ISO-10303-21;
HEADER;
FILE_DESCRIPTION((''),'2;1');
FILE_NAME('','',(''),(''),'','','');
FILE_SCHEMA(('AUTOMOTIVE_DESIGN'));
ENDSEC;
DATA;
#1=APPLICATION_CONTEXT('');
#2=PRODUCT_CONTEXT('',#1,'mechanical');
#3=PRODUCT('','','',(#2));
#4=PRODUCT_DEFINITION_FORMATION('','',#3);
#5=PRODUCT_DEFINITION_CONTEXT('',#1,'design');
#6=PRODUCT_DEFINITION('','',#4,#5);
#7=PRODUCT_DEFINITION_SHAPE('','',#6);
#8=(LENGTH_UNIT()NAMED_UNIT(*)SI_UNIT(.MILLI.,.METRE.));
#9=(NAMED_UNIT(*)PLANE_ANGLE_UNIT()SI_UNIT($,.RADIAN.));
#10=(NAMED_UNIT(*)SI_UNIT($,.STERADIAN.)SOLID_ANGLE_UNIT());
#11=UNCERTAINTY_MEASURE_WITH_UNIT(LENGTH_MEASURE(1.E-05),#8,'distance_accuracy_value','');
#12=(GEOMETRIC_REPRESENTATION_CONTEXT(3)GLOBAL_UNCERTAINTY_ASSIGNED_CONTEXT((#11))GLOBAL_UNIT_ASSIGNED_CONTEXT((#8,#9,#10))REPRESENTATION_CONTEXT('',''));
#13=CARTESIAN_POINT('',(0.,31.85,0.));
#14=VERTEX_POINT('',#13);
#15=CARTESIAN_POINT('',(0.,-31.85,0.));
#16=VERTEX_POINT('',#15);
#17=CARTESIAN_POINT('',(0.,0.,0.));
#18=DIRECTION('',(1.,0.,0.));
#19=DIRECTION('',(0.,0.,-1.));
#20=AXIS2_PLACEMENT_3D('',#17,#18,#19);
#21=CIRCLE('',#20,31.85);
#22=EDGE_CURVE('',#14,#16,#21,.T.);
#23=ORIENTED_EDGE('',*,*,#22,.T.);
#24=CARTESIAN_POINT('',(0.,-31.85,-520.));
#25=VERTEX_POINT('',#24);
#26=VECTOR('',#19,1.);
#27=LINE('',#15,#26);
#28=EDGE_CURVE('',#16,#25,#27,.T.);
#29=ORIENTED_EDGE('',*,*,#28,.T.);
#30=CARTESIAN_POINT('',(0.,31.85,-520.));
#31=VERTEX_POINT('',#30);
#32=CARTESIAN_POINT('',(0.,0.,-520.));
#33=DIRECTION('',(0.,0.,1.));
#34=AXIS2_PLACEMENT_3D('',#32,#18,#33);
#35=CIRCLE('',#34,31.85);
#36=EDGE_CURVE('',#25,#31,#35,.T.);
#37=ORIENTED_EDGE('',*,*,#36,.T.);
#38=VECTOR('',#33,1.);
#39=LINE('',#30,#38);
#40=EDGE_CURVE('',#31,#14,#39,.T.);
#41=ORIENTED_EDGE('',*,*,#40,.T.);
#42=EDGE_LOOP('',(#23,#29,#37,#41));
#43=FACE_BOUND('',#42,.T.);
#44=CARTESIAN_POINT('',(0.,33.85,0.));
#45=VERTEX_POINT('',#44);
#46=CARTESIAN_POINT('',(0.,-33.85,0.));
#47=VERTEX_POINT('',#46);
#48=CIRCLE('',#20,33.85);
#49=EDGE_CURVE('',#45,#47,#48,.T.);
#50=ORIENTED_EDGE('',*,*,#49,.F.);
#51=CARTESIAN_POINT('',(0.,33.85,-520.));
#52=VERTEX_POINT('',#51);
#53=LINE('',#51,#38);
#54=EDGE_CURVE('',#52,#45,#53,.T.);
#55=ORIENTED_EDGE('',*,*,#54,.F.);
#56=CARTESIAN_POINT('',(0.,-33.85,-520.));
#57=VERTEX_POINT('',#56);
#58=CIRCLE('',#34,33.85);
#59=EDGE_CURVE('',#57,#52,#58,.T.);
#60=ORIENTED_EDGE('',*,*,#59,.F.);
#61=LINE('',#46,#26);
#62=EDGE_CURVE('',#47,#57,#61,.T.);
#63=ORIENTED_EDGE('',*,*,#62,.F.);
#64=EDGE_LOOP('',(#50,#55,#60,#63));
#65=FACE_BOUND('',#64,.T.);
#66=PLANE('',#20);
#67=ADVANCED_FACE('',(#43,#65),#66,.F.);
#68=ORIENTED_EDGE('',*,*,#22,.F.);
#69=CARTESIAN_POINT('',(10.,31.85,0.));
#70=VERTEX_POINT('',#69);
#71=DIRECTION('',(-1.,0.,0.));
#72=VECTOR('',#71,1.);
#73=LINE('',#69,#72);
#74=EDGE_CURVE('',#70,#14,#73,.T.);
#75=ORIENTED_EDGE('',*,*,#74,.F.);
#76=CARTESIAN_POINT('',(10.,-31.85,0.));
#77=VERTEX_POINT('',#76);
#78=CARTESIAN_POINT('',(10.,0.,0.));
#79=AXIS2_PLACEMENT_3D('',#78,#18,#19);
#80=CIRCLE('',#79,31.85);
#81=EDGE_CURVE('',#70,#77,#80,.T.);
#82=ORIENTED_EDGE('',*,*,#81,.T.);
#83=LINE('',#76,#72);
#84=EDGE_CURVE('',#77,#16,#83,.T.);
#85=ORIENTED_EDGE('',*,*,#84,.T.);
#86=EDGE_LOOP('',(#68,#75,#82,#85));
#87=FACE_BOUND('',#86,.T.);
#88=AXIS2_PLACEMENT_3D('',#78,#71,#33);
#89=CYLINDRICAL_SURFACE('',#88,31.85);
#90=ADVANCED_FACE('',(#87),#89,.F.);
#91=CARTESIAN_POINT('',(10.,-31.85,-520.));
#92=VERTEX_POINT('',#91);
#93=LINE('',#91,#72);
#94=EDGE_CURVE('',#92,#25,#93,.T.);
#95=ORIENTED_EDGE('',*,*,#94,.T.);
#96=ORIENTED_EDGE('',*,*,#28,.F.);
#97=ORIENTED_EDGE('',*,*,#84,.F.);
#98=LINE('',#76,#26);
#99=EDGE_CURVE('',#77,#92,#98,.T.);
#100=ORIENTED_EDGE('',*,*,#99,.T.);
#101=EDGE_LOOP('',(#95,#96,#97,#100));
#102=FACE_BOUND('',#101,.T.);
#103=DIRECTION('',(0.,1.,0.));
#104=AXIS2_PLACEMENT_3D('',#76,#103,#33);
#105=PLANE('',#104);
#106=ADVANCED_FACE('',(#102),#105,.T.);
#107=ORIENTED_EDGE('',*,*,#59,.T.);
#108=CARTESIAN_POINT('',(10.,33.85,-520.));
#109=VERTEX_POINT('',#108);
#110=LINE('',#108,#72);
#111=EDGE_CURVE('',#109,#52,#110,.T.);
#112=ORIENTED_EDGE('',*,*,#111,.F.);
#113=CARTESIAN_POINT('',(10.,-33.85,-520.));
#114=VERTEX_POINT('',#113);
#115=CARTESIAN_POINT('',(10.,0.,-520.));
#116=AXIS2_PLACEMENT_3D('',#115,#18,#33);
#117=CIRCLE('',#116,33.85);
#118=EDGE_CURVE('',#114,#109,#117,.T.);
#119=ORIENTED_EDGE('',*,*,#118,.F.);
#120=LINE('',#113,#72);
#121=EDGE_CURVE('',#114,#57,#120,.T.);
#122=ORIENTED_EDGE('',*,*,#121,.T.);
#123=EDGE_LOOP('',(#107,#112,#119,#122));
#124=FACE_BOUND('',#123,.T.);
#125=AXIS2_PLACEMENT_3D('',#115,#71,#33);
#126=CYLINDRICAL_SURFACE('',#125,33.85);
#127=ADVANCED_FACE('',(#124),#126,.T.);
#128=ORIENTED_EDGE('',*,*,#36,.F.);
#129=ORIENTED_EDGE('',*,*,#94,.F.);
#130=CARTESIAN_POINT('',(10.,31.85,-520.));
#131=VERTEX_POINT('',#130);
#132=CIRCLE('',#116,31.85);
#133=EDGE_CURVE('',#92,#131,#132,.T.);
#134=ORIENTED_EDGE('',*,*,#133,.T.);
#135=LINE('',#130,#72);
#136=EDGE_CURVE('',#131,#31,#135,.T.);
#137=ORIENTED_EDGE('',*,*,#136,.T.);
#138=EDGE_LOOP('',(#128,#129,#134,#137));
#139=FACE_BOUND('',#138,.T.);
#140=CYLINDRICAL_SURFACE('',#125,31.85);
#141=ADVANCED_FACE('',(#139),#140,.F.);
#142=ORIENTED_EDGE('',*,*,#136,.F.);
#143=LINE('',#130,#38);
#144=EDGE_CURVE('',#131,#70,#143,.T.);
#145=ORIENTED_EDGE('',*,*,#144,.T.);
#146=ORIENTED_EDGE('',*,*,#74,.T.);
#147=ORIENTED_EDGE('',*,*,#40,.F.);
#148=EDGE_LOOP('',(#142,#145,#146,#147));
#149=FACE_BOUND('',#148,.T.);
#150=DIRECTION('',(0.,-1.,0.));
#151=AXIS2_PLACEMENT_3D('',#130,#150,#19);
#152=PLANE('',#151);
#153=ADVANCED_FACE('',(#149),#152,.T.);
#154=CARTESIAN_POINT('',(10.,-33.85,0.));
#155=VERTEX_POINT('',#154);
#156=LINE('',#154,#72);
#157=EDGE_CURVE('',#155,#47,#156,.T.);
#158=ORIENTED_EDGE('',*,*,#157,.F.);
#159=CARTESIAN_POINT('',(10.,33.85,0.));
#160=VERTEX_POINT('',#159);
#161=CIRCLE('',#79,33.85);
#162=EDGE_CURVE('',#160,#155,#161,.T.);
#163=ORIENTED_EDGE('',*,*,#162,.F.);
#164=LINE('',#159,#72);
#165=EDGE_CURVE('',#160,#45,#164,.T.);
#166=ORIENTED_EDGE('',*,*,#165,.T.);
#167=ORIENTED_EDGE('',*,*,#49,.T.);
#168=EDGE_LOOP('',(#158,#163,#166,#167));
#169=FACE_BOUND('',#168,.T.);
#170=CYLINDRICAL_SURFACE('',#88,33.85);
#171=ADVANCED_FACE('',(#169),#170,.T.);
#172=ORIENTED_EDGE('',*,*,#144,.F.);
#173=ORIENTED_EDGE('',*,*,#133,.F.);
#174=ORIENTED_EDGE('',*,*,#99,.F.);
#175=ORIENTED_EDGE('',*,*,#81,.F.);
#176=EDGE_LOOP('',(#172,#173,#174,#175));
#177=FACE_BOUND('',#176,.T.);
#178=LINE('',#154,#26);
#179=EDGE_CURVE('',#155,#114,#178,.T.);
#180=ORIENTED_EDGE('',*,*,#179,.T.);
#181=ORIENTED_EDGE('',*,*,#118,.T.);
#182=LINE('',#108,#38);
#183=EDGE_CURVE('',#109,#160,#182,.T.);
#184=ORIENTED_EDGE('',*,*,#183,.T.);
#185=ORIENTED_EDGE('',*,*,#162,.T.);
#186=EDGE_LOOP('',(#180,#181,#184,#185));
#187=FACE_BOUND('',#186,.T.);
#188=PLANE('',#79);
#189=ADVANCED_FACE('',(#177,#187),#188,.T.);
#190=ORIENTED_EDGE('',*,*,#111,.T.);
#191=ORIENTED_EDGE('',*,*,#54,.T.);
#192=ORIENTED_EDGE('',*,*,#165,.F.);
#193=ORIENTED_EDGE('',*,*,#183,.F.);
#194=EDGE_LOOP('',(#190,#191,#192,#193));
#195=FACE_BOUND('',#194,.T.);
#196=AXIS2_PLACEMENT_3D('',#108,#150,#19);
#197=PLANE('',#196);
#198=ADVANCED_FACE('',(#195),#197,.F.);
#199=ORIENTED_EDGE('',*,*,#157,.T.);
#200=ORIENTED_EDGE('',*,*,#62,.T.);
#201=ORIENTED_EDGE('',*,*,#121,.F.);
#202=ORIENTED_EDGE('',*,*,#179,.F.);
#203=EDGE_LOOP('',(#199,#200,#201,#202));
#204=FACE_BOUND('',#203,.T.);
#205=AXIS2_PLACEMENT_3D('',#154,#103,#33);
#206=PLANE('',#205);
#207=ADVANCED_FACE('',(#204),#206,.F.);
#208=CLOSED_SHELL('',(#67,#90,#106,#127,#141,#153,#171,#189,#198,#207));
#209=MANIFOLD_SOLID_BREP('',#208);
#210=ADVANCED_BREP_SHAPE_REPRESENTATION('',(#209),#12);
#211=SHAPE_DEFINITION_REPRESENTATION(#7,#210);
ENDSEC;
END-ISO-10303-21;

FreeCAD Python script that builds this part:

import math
import FreeCAD as App
import Part
import Sketcher
from FreeCAD import Vector
Q = App.Units.Quantity

doc = App.newDocument("Part")
body = doc.addObject("PartDesign::Body", "Body")

sketch1 = body.newObject("Sketcher::SketchObject", "Sketch")
sketch1.AttachmentSupport = (doc.getObject("YZ_Plane"), [""])
sketch1.MapMode = "FlatFace"
sketch1.addGeometry([
    Part.LineSegment(Vector(-34, 0, 0), Vector(-34, -520, 0)),
    Part.ArcOfCircle(Part.Circle(Vector(0, -520, 0), Vector(0, 0, 1), 34), math.radians(180), math.radians(360)),
    Part.LineSegment(Vector(34, -520, 0), Vector(34, 0, 0)),
    Part.ArcOfCircle(Part.Circle(Vector(0, 0, 0), Vector(0, 0, 1), 34), math.radians(0), math.radians(180)),
    Part.LineSegment(Vector(32, 0, 0), Vector(32, -520, 0)),
    Part.ArcOfCircle(Part.Circle(Vector(0, -520, 0), Vector(0, 0, 1), 32), math.radians(180), math.radians(360)),
    Part.LineSegment(Vector(-32, -520, 0), Vector(-32, 0, 0)),
    Part.ArcOfCircle(Part.Circle(Vector(0, 0, 0), Vector(0, 0, 1), 32), math.radians(0), math.radians(180)),
], False)
sketch1.addConstraint([
    Sketcher.Constraint("Tangent", 0, 2, 1, 1),
    Sketcher.Constraint("Tangent", 1, 2, 2, 1),
    Sketcher.Constraint("Tangent", 2, 2, 3, 1),
    Sketcher.Constraint("Tangent", 3, 2, 0, 1),
    Sketcher.Constraint("Tangent", 4, 2, 5, 2),
    Sketcher.Constraint("Tangent", 5, 1, 6, 1),
    Sketcher.Constraint("Tangent", 6, 2, 7, 2),
    Sketcher.Constraint("Tangent", 7, 1, 4, 1),
    Sketcher.Constraint("Vertical", 0),
    Sketcher.Constraint("Vertical", 2),
    Sketcher.Constraint("Vertical", 4),
    Sketcher.Constraint("Vertical", 6),
    Sketcher.Constraint("Coincident", 3, 3, -1, 1),
    Sketcher.Constraint("Coincident", 7, 3, -1, 1),
    Sketcher.Constraint("Horizontal", 5, 3, 0, 2),
    Sketcher.Constraint("DistanceY", 0, 2, 0, 1, Q("520 mm")),
    Sketcher.Constraint("Radius", 1, Q("33.85 mm")),
    Sketcher.Constraint("Radius", 5, Q("31.85 mm")),
])
pad1 = body.newObject("PartDesign::Pad", "Pad")
pad1.Profile = sketch1
pad1.Length = 10

doc.recompute()
